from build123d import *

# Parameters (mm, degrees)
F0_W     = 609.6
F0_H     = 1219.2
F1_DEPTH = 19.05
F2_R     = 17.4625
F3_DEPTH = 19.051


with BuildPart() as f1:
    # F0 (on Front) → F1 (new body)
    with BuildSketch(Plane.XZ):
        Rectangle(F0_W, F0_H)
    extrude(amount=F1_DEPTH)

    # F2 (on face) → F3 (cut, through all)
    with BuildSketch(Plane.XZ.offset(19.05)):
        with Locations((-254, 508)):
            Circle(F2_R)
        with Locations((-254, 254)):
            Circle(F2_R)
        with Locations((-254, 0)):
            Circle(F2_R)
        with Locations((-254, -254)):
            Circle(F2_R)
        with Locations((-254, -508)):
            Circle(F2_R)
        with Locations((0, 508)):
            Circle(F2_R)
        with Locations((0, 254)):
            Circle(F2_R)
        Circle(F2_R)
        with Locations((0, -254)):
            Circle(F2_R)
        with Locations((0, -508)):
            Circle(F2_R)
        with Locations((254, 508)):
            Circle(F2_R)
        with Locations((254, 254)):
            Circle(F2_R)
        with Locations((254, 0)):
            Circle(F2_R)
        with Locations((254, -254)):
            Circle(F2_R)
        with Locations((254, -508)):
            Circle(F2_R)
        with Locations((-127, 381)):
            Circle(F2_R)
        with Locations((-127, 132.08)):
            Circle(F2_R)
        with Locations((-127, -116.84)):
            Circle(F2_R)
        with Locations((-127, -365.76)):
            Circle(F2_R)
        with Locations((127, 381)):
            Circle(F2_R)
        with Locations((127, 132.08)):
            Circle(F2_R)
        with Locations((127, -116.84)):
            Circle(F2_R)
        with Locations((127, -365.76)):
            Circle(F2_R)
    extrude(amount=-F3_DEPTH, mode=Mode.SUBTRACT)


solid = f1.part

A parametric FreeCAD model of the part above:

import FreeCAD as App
import Part
import Sketcher
Q = App.Units.Quantity


def add_polygon(sketch, points):
    """Adds a closed chain of lines whose ends are joined by coincident constraints."""
    first, n = sketch.GeometryCount, len(points)
    for a, b in zip(points, points[1:] + points[:1]):
        sketch.addGeometry(Part.LineSegment(App.Vector(*a, 0), App.Vector(*b, 0)), False)
    for i in range(n):
        sketch.addConstraint(Sketcher.Constraint("Coincident", first + i, 2, first + (i + 1) % n, 1))

doc = App.newDocument("Part")
body = doc.addObject("PartDesign::Body", "Body")

# Sketch on XZ plane
sketch1 = body.newObject("Sketcher::SketchObject", "Sketch")
sketch1.AttachmentSupport = (doc.getObject("XZ_Plane"), [""])
sketch1.MapMode = "FlatFace"
add_polygon(sketch1, [(-305, 610), (-305, -610), (305, -610), (305, 610)])  # lines 0-3
sketch1.addConstraint(Sketcher.Constraint("Vertical", 0))
sketch1.addConstraint(Sketcher.Constraint("Horizontal", 1))
sketch1.addConstraint(Sketcher.Constraint("Vertical", 2))
sketch1.addConstraint(Sketcher.Constraint("Horizontal", 3))
sketch1.addConstraint(Sketcher.Constraint("Symmetric", 0, 2, 2, 2, -1, 1))
sketch1.addConstraint(Sketcher.Constraint("DistanceX", 1, 1, 1, 2, Q("24 in")))
sketch1.addConstraint(Sketcher.Constraint("DistanceY", 0, 2, 0, 1, Q("48 in")))
pad1 = body.newObject("PartDesign::Pad", "Pad")
pad1.Profile = sketch1
pad1.Length = Q("0.75 in")

# Sketch on XZ plane
sketch2 = body.newObject("Sketcher::SketchObject", "Sketch001")
sketch2.AttachmentSupport = (doc.getObject("XZ_Plane"), [""])
sketch2.MapMode = "FlatFace"
sketch2.AttachmentOffset = App.Placement(App.Vector(0, 0, 0.75 * 25.4), App.Rotation())
sketch2.addGeometry(Part.Circle(App.Vector(-254, 508, 0), App.Vector(0, 0, 1), 17), False)
sketch2.addGeometry(Part.Circle(App.Vector(-254, 254, 0), App.Vector(0, 0, 1), 17), False)
sketch2.addGeometry(Part.Circle(App.Vector(-254, 0, 0), App.Vector(0, 0, 1), 17), False)
sketch2.addGeometry(Part.Circle(App.Vector(-254, -254, 0), App.Vector(0, 0, 1), 17), False)
sketch2.addGeometry(Part.Circle(App.Vector(-254, -508, 0), App.Vector(0, 0, 1), 17), False)
sketch2.addGeometry(Part.Circle(App.Vector(0, 508, 0), App.Vector(0, 0, 1), 17), False)
sketch2.addGeometry(Part.Circle(App.Vector(0, 254, 0), App.Vector(0, 0, 1), 17), False)
sketch2.addGeometry(Part.Circle(App.Vector(0, 0, 0), App.Vector(0, 0, 1), 17), False)
sketch2.addGeometry(Part.Circle(App.Vector(0, -254, 0), App.Vector(0, 0, 1), 17), False)
sketch2.addGeometry(Part.Circle(App.Vector(0, -508, 0), App.Vector(0, 0, 1), 17), False)
sketch2.addGeometry(Part.Circle(App.Vector(254, 508, 0), App.Vector(0, 0, 1), 17), False)
sketch2.addGeometry(Part.Circle(App.Vector(254, 254, 0), App.Vector(0, 0, 1), 17), False)
sketch2.addGeometry(Part.Circle(App.Vector(254, 0, 0), App.Vector(0, 0, 1), 17), False)
sketch2.addGeometry(Part.Circle(App.Vector(254, -254, 0), App.Vector(0, 0, 1), 17), False)
sketch2.addGeometry(Part.Circle(App.Vector(254, -508, 0), App.Vector(0, 0, 1), 17), False)
sketch2.addGeometry(Part.Circle(App.Vector(-127, 381, 0), App.Vector(0, 0, 1), 17), False)
sketch2.addGeometry(Part.Circle(App.Vector(-127, 132, 0), App.Vector(0, 0, 1), 17), False)
sketch2.addGeometry(Part.Circle(App.Vector(-127, -117, 0), App.Vector(0, 0, 1), 17), False)
sketch2.addGeometry(Part.Circle(App.Vector(-127, -366, 0), App.Vector(0, 0, 1), 17), False)
sketch2.addGeometry(Part.Circle(App.Vector(127, 381, 0), App.Vector(0, 0, 1), 17), False)
sketch2.addGeometry(Part.Circle(App.Vector(127, 132, 0), App.Vector(0, 0, 1), 17), False)
sketch2.addGeometry(Part.Circle(App.Vector(127, -117, 0), App.Vector(0, 0, 1), 17), False)
sketch2.addGeometry(Part.Circle(App.Vector(127, -366, 0), App.Vector(0, 0, 1), 17), False)
sketch2.addConstraint(Sketcher.Constraint("Coincident", 7, 3, -1, 1))
sketch2.addConstraint(Sketcher.Constraint("Equal", 0, 1))
sketch2.addConstraint(Sketcher.Constraint("Equal", 1, 2))
sketch2.addConstraint(Sketcher.Constraint("Equal", 2, 3))
sketch2.addConstraint(Sketcher.Constraint("Equal", 3, 4))
sketch2.addConstraint(Sketcher.Constraint("Equal", 4, 5))
sketch2.addConstraint(Sketcher.Constraint("Equal", 5, 6))
sketch2.addConstraint(Sketcher.Constraint("Equal", 6, 7))
sketch2.addConstraint(Sketcher.Constraint("Equal", 7, 8))
sketch2.addConstraint(Sketcher.Constraint("Equal", 8, 9))
sketch2.addConstraint(Sketcher.Constraint("Equal", 9, 10))
sketch2.addConstraint(Sketcher.Constraint("Equal", 10, 11))
sketch2.addConstraint(Sketcher.Constraint("Equal", 11, 12))
sketch2.addConstraint(Sketcher.Constraint("Equal", 12, 13))
sketch2.addConstraint(Sketcher.Constraint("Equal", 13, 14))
sketch2.addConstraint(Sketcher.Constraint("Equal", 14, 15))
sketch2.addConstraint(Sketcher.Constraint("Equal", 15, 16))
sketch2.addConstraint(Sketcher.Constraint("Equal", 16, 17))
sketch2.addConstraint(Sketcher.Constraint("Equal", 17, 18))
sketch2.addConstraint(Sketcher.Constraint("Equal", 18, 19))
sketch2.addConstraint(Sketcher.Constraint("Equal", 19, 20))
sketch2.addConstraint(Sketcher.Constraint("Equal", 20, 21))
sketch2.addConstraint(Sketcher.Constraint("Equal", 21, 22))
sketch2.addConstraint(Sketcher.Constraint("Symmetric", 6, 3, 8, 3, -1, 1))
sketch2.addConstraint(Sketcher.Constraint("Symmetric", 5, 3, 9, 3, -1, 1))
sketch2.addConstraint(Sketcher.Constraint("Symmetric", 4, 3, 10, 3, -1, 1))
sketch2.addConstraint(Sketcher.Constraint("Symmetric", 3, 3, 11, 3, -1, 1))
sketch2.addConstraint(Sketcher.Constraint("Symmetric", 2, 3, 12, 3, -1, 1))
sketch2.addConstraint(Sketcher.Constraint("Symmetric", 1, 3, 13, 3, -1, 1))
sketch2.addConstraint(Sketcher.Constraint("Symmetric", 0, 3, 14, 3, -1, 1))
sketch2.addConstraint(Sketcher.Constraint("Symmetric", 0, 3, 10, 3, -2))
sketch2.addConstraint(Sketcher.Constraint("Symmetric", 1, 3, 11, 3, -2))
sketch2.addConstraint(Sketcher.Constraint("Symmetric", 15, 3, 19, 3, -2))
sketch2.addConstraint(Sketcher.Constraint("Symmetric", 16, 3, 20, 3, -2))
sketch2.addConstraint(Sketcher.Constraint("Symmetric", 17, 3, 21, 3, -2))
sketch2.addConstraint(Sketcher.Constraint("Symmetric", 18, 3, 22, 3, -2))
sketch2.addConstraint(Sketcher.Constraint("PointOnObject", 2, 3, -1))
sketch2.addConstraint(Sketcher.Constraint("PointOnObject", 5, 3, -2))
sketch2.addConstraint(Sketcher.Constraint("PointOnObject", 6, 3, -2))
sketch2.addConstraint(Sketcher.Constraint("Horizontal", 0, 3, 5, 3))
sketch2.addConstraint(Sketcher.Constraint("Horizontal", 1, 3, 6, 3))
sketch2.addConstraint(Sketcher.Constraint("Vertical", 0, 3, 1, 3))
sketch2.addConstraint(Sketcher.Constraint("Vertical", 1, 3, 2, 3))
sketch2.addConstraint(Sketcher.Constraint("Vertical", 15, 3, 16, 3))
sketch2.addConstraint(Sketcher.Constraint("Vertical", 16, 3, 17, 3))
sketch2.addConstraint(Sketcher.Constraint("Vertical", 17, 3, 18, 3))
sketch2.addConstraint(Sketcher.Constraint("Diameter", 0, Q("1.375 in")))
sketch2.addConstraint(Sketcher.Constraint("DistanceX", 0, 3, -1, 1, Q("10 in")))
sketch2.addConstraint(Sketcher.Constraint("DistanceY", -1, 1, 0, 3, Q("20 in")))
sketch2.addConstraint(Sketcher.Constraint("DistanceY", -1, 1, 1, 3, Q("10 in")))
sketch2.addConstraint(Sketcher.Constraint("DistanceX", 15, 3, -1, 1, Q("5 in")))
sketch2.addConstraint(Sketcher.Constraint("DistanceY", -1, 1, 15, 3, Q("15 in")))
sketch2.addConstraint(Sketcher.Constraint("DistanceY", -1, 1, 16, 3, Q("5.2 in")))
sketch2.addConstraint(Sketcher.Constraint("DistanceY", 17, 3, -1, 1, Q("4.6 in")))
sketch2.addConstraint(Sketcher.Constraint("DistanceY", 18, 3, -1, 1, Q("14.4 in")))
pocket1 = body.newObject("PartDesign::Pocket", "Pocket")
pocket1.Profile = sketch2
pocket1.Type = "ThroughAll"

doc.recompute()
